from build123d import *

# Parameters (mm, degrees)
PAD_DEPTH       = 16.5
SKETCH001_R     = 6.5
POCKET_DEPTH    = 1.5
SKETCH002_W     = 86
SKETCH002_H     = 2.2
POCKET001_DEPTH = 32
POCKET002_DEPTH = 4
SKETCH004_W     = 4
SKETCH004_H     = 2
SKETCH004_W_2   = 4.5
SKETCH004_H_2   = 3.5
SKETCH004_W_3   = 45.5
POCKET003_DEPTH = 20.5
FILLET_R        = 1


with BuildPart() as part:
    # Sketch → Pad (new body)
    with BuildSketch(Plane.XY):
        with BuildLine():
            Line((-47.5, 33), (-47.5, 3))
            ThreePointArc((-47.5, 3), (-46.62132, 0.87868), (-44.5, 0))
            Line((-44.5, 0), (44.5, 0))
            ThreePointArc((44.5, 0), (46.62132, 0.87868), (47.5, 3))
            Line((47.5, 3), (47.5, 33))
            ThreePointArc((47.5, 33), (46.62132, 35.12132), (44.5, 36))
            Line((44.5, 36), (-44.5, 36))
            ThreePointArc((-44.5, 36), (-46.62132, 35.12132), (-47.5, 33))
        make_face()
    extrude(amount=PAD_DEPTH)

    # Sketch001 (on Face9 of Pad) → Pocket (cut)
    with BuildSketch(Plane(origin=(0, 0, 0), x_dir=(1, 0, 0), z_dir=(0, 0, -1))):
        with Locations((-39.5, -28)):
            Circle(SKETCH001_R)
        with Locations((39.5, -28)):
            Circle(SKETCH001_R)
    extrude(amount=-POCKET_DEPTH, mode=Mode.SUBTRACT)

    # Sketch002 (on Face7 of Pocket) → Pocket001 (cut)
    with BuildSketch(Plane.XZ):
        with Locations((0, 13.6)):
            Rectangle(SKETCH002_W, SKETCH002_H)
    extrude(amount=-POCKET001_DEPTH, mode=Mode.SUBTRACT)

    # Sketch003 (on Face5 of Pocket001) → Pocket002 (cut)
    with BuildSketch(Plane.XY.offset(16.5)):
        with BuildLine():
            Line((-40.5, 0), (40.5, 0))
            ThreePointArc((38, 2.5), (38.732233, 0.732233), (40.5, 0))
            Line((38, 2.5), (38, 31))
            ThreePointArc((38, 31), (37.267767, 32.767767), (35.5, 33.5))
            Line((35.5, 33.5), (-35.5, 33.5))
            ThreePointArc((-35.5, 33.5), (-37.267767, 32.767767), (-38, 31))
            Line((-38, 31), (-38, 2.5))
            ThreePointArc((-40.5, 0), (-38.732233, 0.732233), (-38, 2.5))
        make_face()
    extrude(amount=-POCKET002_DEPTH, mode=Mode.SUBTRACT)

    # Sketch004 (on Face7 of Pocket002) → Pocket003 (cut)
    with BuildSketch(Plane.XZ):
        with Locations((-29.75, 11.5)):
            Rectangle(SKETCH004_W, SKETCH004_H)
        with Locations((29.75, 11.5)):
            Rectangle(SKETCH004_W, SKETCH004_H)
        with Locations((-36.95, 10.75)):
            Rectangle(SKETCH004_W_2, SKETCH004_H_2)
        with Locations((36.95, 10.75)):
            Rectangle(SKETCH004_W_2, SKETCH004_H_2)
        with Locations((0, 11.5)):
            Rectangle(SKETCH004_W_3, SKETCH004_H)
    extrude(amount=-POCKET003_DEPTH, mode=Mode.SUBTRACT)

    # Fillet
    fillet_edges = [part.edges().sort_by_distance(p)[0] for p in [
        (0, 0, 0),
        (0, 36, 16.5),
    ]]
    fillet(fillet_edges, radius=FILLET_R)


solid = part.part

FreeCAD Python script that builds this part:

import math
import FreeCAD as App
import Part
import Sketcher


def edges_at(feature, points):
    """Names of the edges that pass closest to the given points."""
    edges = feature.Shape.Edges
    near = lambda p: min(range(len(edges)), key=lambda i: edges[i].distToShape(Part.Vertex(*p))[0])
    return sorted({f"Edge{near(p) + 1}" for p in points})

doc = App.newDocument("Part")
body = doc.addObject("PartDesign::Body", "Body")

# Sketch on XY plane
sketch1 = body.newObject("Sketcher::SketchObject", "Sketch")
sketch1.AttachmentSupport = (doc.getObject("XY_Plane"), [""])
sketch1.MapMode = "FlatFace"
sketch1.addGeometry([
    Part.LineSegment(App.Vector(-47.5, 33, 0), App.Vector(-47.5, 3, 0)),  # 0
    Part.ArcOfCircle(Part.Circle(App.Vector(-44.5, 3, 0), App.Vector(0, 0, 1), 3), math.radians(-180), math.radians(-90)),  # 1
    Part.LineSegment(App.Vector(-44.5, 0, 0), App.Vector(44.5, 0, 0)),  # 2
    Part.ArcOfCircle(Part.Circle(App.Vector(44.5, 3, 0), App.Vector(0, 0, 1), 3), math.radians(-90), math.radians(0)),  # 3
    Part.LineSegment(App.Vector(47.5, 3, 0), App.Vector(47.5, 33, 0)),  # 4
    Part.ArcOfCircle(Part.Circle(App.Vector(44.5, 33, 0), App.Vector(0, 0, 1), 3), math.radians(0), math.radians(90)),  # 5
    Part.LineSegment(App.Vector(44.5, 36, 0), App.Vector(-44.5, 36, 0)),  # 6
    Part.ArcOfCircle(Part.Circle(App.Vector(-44.5, 33, 0), App.Vector(0, 0, 1), 3), math.radians(90), math.radians(180)),  # 7
], False)
sketch1.addConstraint([
    Sketcher.Constraint("Tangent", 0, 2, 1, 1),
    Sketcher.Constraint("Tangent", 1, 2, 2, 1),
    Sketcher.Constraint("Tangent", 2, 2, 3, 1),
    Sketcher.Constraint("Tangent", 3, 2, 4, 1),
    Sketcher.Constraint("Tangent", 4, 2, 5, 1),
    Sketcher.Constraint("Tangent", 5, 2, 6, 1),
    Sketcher.Constraint("Tangent", 6, 2, 7, 1),
    Sketcher.Constraint("Tangent", 7, 2, 0, 1),
    Sketcher.Constraint("Vertical", 0),
    Sketcher.Constraint("Horizontal", 2),
    Sketcher.Constraint("Vertical", 4),
    Sketcher.Constraint("Horizontal", 6),
    Sketcher.Constraint("Equal", 1, 3),
    Sketcher.Constraint("Equal", 3, 5),
    Sketcher.Constraint("Equal", 5, 7),
    Sketcher.Constraint("Symmetric", 1, 2, 2, 2, -1, 1),
    Sketcher.Constraint("Radius", 1, 3.000001),
    Sketcher.Constraint("DistanceX", 2, 1, 2, 2, 89.0),
    Sketcher.Constraint("DistanceY", 0, 2, 0, 1, 30.0),
])
pad1 = body.newObject("PartDesign::Pad", "Pad")
pad1.Profile = sketch1
pad1.Length = 16.5

# Sketch on XY plane
sketch2 = body.newObject("Sketcher::SketchObject", "Sketch001")
sketch2.AttachmentSupport = (doc.getObject("XY_Plane"), [""])
sketch2.MapMode = "FlatFace"
sketch2.addGeometry([
    Part.Circle(App.Vector(-40, 28, 0), App.Vector(0, 0, 1), 6),
    Part.Circle(App.Vector(40, 28, 0), App.Vector(0, 0, 1), 6),
], False)
sketch2.addConstraint([
    Sketcher.Constraint("Equal", 0, 1),
    Sketcher.Constraint("Symmetric", 0, 3, 1, 3, -2),
    Sketcher.Constraint("Diameter", 0, 13.0),
    Sketcher.Constraint("DistanceY", -1, 1, 0, 3, 28.0),
    Sketcher.Constraint("DistanceX", 0, 3, 1, 3, 79.0),
])
pocket1 = body.newObject("PartDesign::Pocket", "Pocket")
pocket1.Profile = sketch2
pocket1.Length = 1.5
pocket1.Reversed = True

# Sketch on XZ plane
sketch3 = body.newObject("Sketcher::SketchObject", "Sketch002")
sketch3.AttachmentSupport = (doc.getObject("XZ_Plane"), [""])
sketch3.MapMode = "FlatFace"
sketch3.addGeometry([
    Part.LineSegment(App.Vector(-43, 14.7, 0), App.Vector(-43, 12.5, 0)),
    Part.LineSegment(App.Vector(-43, 12.5, 0), App.Vector(43, 12.5, 0)),
    Part.LineSegment(App.Vector(43, 12.5, 0), App.Vector(43, 14.7, 0)),
    Part.LineSegment(App.Vector(43, 14.7, 0), App.Vector(-43, 14.7, 0)),
], False)
sketch3.addConstraint([
    Sketcher.Constraint("Coincident", 0, 2, 1, 1),
    Sketcher.Constraint("Coincident", 1, 2, 2, 1),
    Sketcher.Constraint("Coincident", 2, 2, 3, 1),
    Sketcher.Constraint("Coincident", 3, 2, 0, 1),
    Sketcher.Constraint("Vertical", 0),
    Sketcher.Constraint("Horizontal", 1),
    Sketcher.Constraint("Vertical", 2),
    Sketcher.Constraint("Horizontal", 3),
    Sketcher.Constraint("DistanceX", 1, 1, 1, 2, 86.0),
    Sketcher.Constraint("DistanceY", 0, 2, 0, 1, 2.2),
    Sketcher.Constraint("DistanceX", 0, 2, -1, 1, 43.0),
    Sketcher.Constraint("DistanceY", -1, 1, 0, 2, 12.5),
])
pocket2 = body.newObject("PartDesign::Pocket", "Pocket001")
pocket2.Profile = sketch3
pocket2.Length = 32

# Sketch on XY plane
sketch4 = body.newObject("Sketcher::SketchObject", "Sketch003")
sketch4.AttachmentSupport = (doc.getObject("XY_Plane"), [""])
sketch4.MapMode = "FlatFace"
sketch4.AttachmentOffset = App.Placement(App.Vector(0, 0, 16.5), App.Rotation())
sketch4.addGeometry([
    Part.LineSegment(App.Vector(-40.5, 0, 0), App.Vector(40.5, 0, 0)),  # 0
    Part.ArcOfCircle(Part.Circle(App.Vector(40.5, 2.5, 0), App.Vector(0, 0, 1), 2.5), math.radians(180), math.radians(270)),  # 1
    Part.LineSegment(App.Vector(38, 2.5, 0), App.Vector(38, 31, 0)),  # 2
    Part.ArcOfCircle(Part.Circle(App.Vector(35.5, 31, 0), App.Vector(0, 0, 1), 2.5), math.radians(0), math.radians(90)),  # 3
    Part.LineSegment(App.Vector(35.5, 33.5, 0), App.Vector(-35.5, 33.5, 0)),  # 4
    Part.ArcOfCircle(Part.Circle(App.Vector(-35.5, 31, 0), App.Vector(0, 0, 1), 2.5), math.radians(90), math.radians(180)),  # 5
    Part.LineSegment(App.Vector(-38, 31, 0), App.Vector(-38, 2.5, 0)),  # 6
    Part.ArcOfCircle(Part.Circle(App.Vector(-40.5, 2.5, 0), App.Vector(0, 0, 1), 2.5), math.radians(-90), math.radians(0)),  # 7
], False)
sketch4.addConstraint([
    Sketcher.Constraint("Tangent", 0, 2, 1, 2),
    Sketcher.Constraint("Tangent", 1, 1, 2, 1),
    Sketcher.Constraint("Tangent", 2, 2, 3, 1),
    Sketcher.Constraint("Tangent", 3, 2, 4, 1),
    Sketcher.Constraint("Tangent", 4, 2, 5, 1),
    Sketcher.Constraint("Tangent", 5, 2, 6, 1),
    Sketcher.Constraint("Tangent", 6, 2, 7, 2),
    Sketcher.Constraint("Tangent", 7, 1, 0, 1),
    Sketcher.Constraint("Horizontal", 0),
    Sketcher.Constraint("Vertical", 2),
    Sketcher.Constraint("Horizontal", 4),
    Sketcher.Constraint("Vertical", 6),
    Sketcher.Constraint("Equal", 1, 3),
    Sketcher.Constraint("Equal", 3, 5),
    Sketcher.Constraint("Equal", 5, 7),
    Sketcher.Constraint("Symmetric", 0, 2, 7, 1, -1, 1),
    Sketcher.Constraint("Radius", 1, 2.5),
    Sketcher.Constraint("DistanceX", 0, 1, 0, 2, 81.0),
    Sketcher.Constraint("DistanceY", 2, 1, 2, 2, 28.5),
])
pocket3 = body.newObject("PartDesign::Pocket", "Pocket002")
pocket3.Profile = sketch4
pocket3.Length = 4

# Sketch on XZ plane
sketch5 = body.newObject("Sketcher::SketchObject", "Sketch004")
sketch5.AttachmentSupport = (doc.getObject("XZ_Plane"), [""])
sketch5.MapMode = "FlatFace"
sketch5.addGeometry([
    Part.LineSegment(App.Vector(-31.8, 12.5, 0), App.Vector(-31.8, 10.5, 0)),  # 0
    Part.LineSegment(App.Vector(-31.8, 10.5, 0), App.Vector(-27.8, 10.5, 0)),  # 1
    Part.LineSegment(App.Vector(-27.8, 10.5, 0), App.Vector(-27.8, 12.5, 0)),  # 2
    Part.LineSegment(App.Vector(-27.8, 12.5, 0), App.Vector(-31.8, 12.5, 0)),  # 3
    Part.LineSegment(App.Vector(27.8, 12.5, 0), App.Vector(27.8, 10.5, 0)),  # 4
    Part.LineSegment(App.Vector(27.8, 10.5, 0), App.Vector(31.8, 10.5, 0)),  # 5
    Part.LineSegment(App.Vector(31.8, 10.5, 0), App.Vector(31.8, 12.5, 0)),  # 6
    Part.LineSegment(App.Vector(31.8, 12.5, 0), App.Vector(27.8, 12.5, 0)),  # 7
    Part.LineSegment(App.Vector(-39.2, 12.5, 0), App.Vector(-39.2, 9, 0)),  # 8
    Part.LineSegment(App.Vector(-39.2, 9, 0), App.Vector(-34.7, 9, 0)),  # 9
    Part.LineSegment(App.Vector(-34.7, 9, 0), App.Vector(-34.7, 12.5, 0)),  # 10
    Part.LineSegment(App.Vector(-34.7, 12.5, 0), App.Vector(-39.2, 12.5, 0)),  # 11
    Part.LineSegment(App.Vector(34.7, 12.5, 0), App.Vector(34.7, 9, 0)),  # 12
    Part.LineSegment(App.Vector(34.7, 9, 0), App.Vector(39.2, 9, 0)),  # 13
    Part.LineSegment(App.Vector(39.2, 9, 0), App.Vector(39.2, 12.5, 0)),  # 14
    Part.LineSegment(App.Vector(39.2, 12.5, 0), App.Vector(34.7, 12.5, 0)),  # 15
    Part.LineSegment(App.Vector(-22.8, 12.5, 0), App.Vector(-22.8, 10.5, 0)),  # 16
    Part.LineSegment(App.Vector(-22.8, 10.5, 0), App.Vector(22.8, 10.5, 0)),  # 17
    Part.LineSegment(App.Vector(22.8, 10.5, 0), App.Vector(22.8, 12.5, 0)),  # 18
    Part.LineSegment(App.Vector(22.8, 12.5, 0), App.Vector(-22.8, 12.5, 0)),  # 19
], False)
sketch5.addConstraint([
    Sketcher.Constraint("Coincident", 0, 2, 1, 1),
    Sketcher.Constraint("Coincident", 1, 2, 2, 1),
    Sketcher.Constraint("Coincident", 2, 2, 3, 1),
    Sketcher.Constraint("Coincident", 3, 2, 0, 1),
    Sketcher.Constraint("Coincident", 4, 2, 5, 1),
    Sketcher.Constraint("Coincident", 5, 2, 6, 1),
    Sketcher.Constraint("Coincident", 6, 2, 7, 1),
    Sketcher.Constraint("Coincident", 7, 2, 4, 1),
    Sketcher.Constraint("Coincident", 8, 2, 9, 1),
    Sketcher.Constraint("Coincident", 9, 2, 10, 1),
    Sketcher.Constraint("Coincident", 10, 2, 11, 1),
    Sketcher.Constraint("Coincident", 11, 2, 8, 1),
    Sketcher.Constraint("Coincident", 12, 2, 13, 1),
    Sketcher.Constraint("Coincident", 13, 2, 14, 1),
    Sketcher.Constraint("Coincident", 14, 2, 15, 1),
    Sketcher.Constraint("Coincident", 15, 2, 12, 1),
    Sketcher.Constraint("Coincident", 16, 2, 17, 1),
    Sketcher.Constraint("Coincident", 17, 2, 18, 1),
    Sketcher.Constraint("Coincident", 18, 2, 19, 1),
    Sketcher.Constraint("Coincident", 19, 2, 16, 1),
    Sketcher.Constraint("Vertical", 0),
    Sketcher.Constraint("Horizontal", 1),
    Sketcher.Constraint("Vertical", 2),
    Sketcher.Constraint("Horizontal", 3),
    Sketcher.Constraint("Vertical", 4),
    Sketcher.Constraint("Horizontal", 5),
    Sketcher.Constraint("Vertical", 6),
    Sketcher.Constraint("Horizontal", 7),
    Sketcher.Constraint("Vertical", 8),
    Sketcher.Constraint("Horizontal", 9),
    Sketcher.Constraint("Vertical", 10),
    Sketcher.Constraint("Horizontal", 11),
    Sketcher.Constraint("Vertical", 12),
    Sketcher.Constraint("Horizontal", 13),
    Sketcher.Constraint("Vertical", 14),
    Sketcher.Constraint("Horizontal", 15),
    Sketcher.Constraint("Vertical", 16),
    Sketcher.Constraint("Horizontal", 17),
    Sketcher.Constraint("Vertical", 18),
    Sketcher.Constraint("Horizontal", 19),
    Sketcher.Constraint("Symmetric", 1, 2, 4, 2, -2),
    Sketcher.Constraint("Symmetric", 3, 2, 6, 2, -2),
    Sketcher.Constraint("Symmetric", 9, 2, 12, 2, -2),
    Sketcher.Constraint("Symmetric", 11, 2, 14, 2, -2),
    Sketcher.Constraint("Horizontal", 7, 2, 10, 2),
    Sketcher.Constraint("Horizontal", 5, 2, 16, 2),
    Sketcher.Constraint("Horizontal", 15, 2, 18, 2),
    Sketcher.Constraint("DistanceX", 1, 1, 1, 2, 4.0),
    Sketcher.Constraint("DistanceY", 0, 2, 0, 1, 2.0),
    Sketcher.Constraint("DistanceX", 9, 1, 9, 2, 4.5),
    Sketcher.Constraint("DistanceX", 17, 1, 17, 2, 45.5),
    Sketcher.Constraint("DistanceY", 8, 2, 8, 1, 3.5),
    Sketcher.Constraint("DistanceY", -1, 1, 8, 2, 9.0),
    Sketcher.Constraint("DistanceX", 1, 2, 16, 2, 5.0),
    Sketcher.Constraint("DistanceX", 17, 2, 4, 2, 5.0),
    Sketcher.Constraint("DistanceX", 8, 2, -1, 1, 39.2),
])
pocket4 = body.newObject("PartDesign::Pocket", "Pocket003")
pocket4.Profile = sketch5
pocket4.Length = 20.5
doc.recompute()

fillet = body.newObject("PartDesign::Fillet", "Fillet")
fillet.Base = (pocket4, edges_at(pocket4, [(0, 0, 0), (0, 36, 16.5)]))
fillet.Radius = 1

doc.recompute()
